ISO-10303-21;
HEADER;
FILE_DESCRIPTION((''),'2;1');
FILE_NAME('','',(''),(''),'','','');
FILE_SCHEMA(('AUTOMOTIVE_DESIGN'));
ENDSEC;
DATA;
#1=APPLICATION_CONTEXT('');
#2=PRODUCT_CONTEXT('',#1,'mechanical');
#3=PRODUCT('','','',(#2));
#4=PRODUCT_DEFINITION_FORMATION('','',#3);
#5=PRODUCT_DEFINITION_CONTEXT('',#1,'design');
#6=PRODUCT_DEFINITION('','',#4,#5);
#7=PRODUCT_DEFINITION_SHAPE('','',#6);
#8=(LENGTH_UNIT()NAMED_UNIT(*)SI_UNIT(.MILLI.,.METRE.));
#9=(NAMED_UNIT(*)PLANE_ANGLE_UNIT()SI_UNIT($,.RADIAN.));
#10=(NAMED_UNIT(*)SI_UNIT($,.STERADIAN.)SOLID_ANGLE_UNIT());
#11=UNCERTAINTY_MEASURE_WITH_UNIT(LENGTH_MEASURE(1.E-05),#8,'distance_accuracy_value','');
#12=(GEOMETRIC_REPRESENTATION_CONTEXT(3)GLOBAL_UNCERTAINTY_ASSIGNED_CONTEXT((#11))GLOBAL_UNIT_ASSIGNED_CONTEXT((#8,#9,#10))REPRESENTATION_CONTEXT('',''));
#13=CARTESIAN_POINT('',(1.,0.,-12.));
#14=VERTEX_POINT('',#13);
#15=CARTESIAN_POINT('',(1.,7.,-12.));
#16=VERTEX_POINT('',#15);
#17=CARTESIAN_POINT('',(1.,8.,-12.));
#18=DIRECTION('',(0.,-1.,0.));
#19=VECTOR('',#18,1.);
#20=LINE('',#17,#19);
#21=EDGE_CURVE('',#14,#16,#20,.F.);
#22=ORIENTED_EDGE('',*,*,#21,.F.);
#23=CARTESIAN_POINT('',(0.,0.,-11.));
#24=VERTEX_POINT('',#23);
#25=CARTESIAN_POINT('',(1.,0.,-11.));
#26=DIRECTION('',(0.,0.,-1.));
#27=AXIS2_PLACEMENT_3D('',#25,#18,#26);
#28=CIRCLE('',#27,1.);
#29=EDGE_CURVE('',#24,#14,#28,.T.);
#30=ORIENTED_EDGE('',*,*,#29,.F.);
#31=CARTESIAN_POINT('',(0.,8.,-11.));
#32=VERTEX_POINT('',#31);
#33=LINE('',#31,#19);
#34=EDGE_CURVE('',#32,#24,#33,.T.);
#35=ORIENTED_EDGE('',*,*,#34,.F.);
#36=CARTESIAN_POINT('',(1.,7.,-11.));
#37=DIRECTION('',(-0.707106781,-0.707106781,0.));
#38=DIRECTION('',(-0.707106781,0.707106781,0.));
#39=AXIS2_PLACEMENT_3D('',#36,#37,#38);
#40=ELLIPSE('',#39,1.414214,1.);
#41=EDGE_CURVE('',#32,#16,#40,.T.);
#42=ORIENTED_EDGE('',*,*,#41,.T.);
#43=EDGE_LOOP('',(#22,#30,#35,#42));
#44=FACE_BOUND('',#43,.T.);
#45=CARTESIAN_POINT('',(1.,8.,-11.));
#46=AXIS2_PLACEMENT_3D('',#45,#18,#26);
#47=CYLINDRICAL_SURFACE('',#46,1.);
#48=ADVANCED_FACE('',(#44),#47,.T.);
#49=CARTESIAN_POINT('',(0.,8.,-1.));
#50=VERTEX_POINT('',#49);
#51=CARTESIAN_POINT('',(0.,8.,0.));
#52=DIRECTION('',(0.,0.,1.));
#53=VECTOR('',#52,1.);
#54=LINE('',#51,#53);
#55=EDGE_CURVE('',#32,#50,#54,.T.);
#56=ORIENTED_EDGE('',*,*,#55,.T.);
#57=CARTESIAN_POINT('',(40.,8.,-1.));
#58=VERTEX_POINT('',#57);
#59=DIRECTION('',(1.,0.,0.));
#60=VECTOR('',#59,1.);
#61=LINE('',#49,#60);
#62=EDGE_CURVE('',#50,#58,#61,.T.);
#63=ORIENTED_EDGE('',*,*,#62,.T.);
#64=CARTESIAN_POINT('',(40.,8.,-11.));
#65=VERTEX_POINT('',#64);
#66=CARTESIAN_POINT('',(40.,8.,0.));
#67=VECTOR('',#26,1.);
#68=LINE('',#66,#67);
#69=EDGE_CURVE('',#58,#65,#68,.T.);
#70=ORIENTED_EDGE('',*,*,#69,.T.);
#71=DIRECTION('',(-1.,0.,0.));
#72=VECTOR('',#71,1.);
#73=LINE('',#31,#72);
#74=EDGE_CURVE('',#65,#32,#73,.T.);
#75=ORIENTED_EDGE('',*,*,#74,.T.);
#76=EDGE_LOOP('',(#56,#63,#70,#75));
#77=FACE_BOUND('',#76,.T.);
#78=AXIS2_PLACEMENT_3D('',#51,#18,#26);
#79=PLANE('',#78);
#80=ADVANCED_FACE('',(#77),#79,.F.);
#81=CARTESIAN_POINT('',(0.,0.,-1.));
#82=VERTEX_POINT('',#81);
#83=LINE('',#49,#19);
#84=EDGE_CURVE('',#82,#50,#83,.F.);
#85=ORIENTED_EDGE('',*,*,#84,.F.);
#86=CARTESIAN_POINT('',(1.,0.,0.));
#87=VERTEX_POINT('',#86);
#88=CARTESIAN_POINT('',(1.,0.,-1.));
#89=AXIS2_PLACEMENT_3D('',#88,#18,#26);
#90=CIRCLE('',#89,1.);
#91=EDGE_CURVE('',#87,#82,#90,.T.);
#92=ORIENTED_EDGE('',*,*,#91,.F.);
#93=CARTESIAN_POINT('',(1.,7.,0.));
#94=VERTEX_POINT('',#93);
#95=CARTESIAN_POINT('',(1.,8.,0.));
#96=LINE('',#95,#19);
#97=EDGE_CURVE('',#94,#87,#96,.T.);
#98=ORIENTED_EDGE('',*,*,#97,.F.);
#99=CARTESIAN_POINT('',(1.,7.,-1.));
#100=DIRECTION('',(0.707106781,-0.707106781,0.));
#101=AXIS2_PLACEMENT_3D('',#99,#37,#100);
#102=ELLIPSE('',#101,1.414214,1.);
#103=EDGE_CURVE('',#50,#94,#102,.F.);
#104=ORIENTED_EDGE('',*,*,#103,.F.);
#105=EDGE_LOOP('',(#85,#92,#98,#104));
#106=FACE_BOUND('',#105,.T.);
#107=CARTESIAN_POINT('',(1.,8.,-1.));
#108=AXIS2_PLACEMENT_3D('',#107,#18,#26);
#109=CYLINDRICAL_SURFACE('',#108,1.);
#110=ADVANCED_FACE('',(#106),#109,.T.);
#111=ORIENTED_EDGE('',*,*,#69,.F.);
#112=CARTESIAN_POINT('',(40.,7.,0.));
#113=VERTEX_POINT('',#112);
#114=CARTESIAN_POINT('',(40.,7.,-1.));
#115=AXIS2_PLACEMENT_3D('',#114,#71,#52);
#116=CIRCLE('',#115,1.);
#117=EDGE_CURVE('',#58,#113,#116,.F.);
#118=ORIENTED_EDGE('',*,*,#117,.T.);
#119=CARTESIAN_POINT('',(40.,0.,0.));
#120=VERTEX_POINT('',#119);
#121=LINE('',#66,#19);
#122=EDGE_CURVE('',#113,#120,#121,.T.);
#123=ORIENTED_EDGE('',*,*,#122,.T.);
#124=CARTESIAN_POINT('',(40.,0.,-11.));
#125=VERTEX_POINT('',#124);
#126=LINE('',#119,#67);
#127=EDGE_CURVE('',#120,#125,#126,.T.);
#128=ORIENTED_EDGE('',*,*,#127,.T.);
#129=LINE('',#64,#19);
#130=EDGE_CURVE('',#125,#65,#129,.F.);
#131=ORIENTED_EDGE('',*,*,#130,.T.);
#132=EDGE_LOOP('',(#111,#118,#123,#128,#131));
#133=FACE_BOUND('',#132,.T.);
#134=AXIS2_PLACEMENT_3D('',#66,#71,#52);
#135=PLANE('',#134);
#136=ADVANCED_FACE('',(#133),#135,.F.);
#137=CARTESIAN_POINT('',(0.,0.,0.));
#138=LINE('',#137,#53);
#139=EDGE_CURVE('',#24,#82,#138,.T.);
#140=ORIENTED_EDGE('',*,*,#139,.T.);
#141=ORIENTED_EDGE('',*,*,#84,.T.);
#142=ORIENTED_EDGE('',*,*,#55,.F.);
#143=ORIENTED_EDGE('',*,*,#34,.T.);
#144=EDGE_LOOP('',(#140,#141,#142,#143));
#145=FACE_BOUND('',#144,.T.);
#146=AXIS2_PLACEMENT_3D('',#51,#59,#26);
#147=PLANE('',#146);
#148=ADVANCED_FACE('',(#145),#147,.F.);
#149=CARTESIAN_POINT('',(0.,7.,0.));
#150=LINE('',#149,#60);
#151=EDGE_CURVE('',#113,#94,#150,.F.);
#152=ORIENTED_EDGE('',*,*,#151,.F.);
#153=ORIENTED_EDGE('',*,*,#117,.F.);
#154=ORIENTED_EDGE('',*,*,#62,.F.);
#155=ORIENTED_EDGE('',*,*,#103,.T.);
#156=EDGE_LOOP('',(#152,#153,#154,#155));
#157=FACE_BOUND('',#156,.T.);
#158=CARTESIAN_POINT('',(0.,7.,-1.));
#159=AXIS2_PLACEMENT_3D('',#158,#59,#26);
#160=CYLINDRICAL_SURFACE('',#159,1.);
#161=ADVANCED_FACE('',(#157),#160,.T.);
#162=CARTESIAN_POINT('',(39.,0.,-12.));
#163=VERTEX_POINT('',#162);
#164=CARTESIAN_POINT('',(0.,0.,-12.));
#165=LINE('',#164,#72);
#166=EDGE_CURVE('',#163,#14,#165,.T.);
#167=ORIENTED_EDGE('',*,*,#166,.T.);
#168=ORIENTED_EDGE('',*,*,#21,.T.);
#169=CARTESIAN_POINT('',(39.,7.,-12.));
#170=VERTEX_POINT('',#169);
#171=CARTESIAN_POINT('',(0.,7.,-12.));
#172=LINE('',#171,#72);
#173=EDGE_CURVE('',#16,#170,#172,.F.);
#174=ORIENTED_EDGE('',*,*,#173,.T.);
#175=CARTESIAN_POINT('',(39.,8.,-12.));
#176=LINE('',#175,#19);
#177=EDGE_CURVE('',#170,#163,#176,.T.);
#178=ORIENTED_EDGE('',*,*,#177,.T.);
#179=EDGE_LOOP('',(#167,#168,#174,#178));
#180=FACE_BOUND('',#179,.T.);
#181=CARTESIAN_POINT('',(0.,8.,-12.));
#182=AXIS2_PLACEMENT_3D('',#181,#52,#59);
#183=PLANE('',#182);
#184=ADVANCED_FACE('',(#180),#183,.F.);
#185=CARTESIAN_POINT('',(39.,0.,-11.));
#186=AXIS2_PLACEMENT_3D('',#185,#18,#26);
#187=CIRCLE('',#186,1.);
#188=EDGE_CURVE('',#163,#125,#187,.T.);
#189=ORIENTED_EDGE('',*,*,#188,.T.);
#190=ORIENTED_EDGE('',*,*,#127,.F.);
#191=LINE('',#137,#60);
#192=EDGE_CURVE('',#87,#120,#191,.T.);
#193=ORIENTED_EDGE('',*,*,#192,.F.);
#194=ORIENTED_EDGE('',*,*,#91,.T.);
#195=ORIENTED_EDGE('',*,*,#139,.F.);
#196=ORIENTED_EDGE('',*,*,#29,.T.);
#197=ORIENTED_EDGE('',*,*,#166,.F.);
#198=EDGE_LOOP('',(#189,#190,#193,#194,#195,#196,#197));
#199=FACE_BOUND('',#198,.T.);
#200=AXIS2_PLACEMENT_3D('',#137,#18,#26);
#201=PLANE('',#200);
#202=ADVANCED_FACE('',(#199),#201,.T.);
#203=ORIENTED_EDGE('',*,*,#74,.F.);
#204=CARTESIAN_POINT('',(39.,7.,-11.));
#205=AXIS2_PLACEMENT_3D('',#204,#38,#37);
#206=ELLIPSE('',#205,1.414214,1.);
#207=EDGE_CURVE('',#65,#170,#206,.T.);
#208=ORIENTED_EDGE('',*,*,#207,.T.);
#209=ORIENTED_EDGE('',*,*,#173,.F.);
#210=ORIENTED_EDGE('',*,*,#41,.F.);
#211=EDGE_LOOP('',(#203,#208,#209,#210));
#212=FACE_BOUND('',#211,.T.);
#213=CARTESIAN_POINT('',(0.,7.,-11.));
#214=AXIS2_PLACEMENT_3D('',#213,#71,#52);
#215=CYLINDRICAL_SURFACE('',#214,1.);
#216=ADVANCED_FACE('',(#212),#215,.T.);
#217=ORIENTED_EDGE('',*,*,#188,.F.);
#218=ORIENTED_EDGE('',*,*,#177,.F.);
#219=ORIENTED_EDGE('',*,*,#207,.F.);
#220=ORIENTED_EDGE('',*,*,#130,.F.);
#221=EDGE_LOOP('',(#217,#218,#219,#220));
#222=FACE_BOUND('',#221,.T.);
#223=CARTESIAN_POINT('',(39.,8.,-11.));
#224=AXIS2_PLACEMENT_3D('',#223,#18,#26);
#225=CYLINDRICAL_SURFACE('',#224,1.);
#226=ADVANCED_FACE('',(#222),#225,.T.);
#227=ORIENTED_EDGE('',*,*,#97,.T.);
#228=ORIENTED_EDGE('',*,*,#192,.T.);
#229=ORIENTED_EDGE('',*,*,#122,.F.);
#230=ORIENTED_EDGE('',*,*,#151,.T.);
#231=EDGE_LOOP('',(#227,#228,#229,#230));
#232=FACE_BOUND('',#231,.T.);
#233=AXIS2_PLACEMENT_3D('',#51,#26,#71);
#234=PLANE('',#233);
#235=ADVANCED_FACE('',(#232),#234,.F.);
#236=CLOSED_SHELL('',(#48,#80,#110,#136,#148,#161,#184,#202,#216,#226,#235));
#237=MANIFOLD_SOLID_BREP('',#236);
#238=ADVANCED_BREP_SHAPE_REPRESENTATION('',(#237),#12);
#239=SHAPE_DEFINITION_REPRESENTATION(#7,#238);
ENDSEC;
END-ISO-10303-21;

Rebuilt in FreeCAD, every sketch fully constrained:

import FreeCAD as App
import Part
import Sketcher

V = App.Vector
Q = App.Units.Quantity


def edges_at(feature, points):
    """Names of the edges that pass closest to the given points."""
    edges = feature.Shape.Edges
    near = lambda p: min(range(len(edges)), key=lambda i: edges[i].distToShape(Part.Vertex(*p))[0])
    return sorted({f"Edge{near(p) + 1}" for p in points})

doc = App.newDocument("Part")
body = doc.addObject("PartDesign::Body", "Body")

# Sketch on XZ plane
sketch1 = doc.addObject("Sketcher::SketchObject", "Sketch")
body.addObject(sketch1)
sketch1.AttachmentSupport = (doc.XZ_Plane, [""])
sketch1.MapMode = "FlatFace"
sketch1.addGeometry(Part.LineSegment(V(0, -12, 0), V(0, 0, 0)), False)
sketch1.addGeometry(Part.LineSegment(V(0, 0, 0), V(40, 0, 0)), False)
sketch1.addGeometry(Part.LineSegment(V(40, 0, 0), V(40, -12, 0)), False)
sketch1.addGeometry(Part.LineSegment(V(40, -12, 0), V(0, -12, 0)), False)
sketch1.addConstraint(Sketcher.Constraint("Coincident", 0, 2, 1, 1))
sketch1.addConstraint(Sketcher.Constraint("Coincident", 1, 2, 2, 1))
sketch1.addConstraint(Sketcher.Constraint("Coincident", 2, 2, 3, 1))
sketch1.addConstraint(Sketcher.Constraint("Coincident", 3, 2, 0, 1))
sketch1.addConstraint(Sketcher.Constraint("Vertical", 0))
sketch1.addConstraint(Sketcher.Constraint("Horizontal", 1))
sketch1.addConstraint(Sketcher.Constraint("Vertical", 2))
sketch1.addConstraint(Sketcher.Constraint("Horizontal", 3))
sketch1.addConstraint(Sketcher.Constraint("Coincident", 0, 2, -1, 1))
sketch1.addConstraint(Sketcher.Constraint("DistanceX", 1, 1, 1, 2, Q("40 mm")))
sketch1.addConstraint(Sketcher.Constraint("DistanceY", 0, 1, 0, 2, Q("12 mm")))
pad1 = doc.addObject("PartDesign::Pad", "Pad")
body.addObject(pad1)
pad1.Profile = sketch1
pad1.Length = 8
pad1.Reversed = True
doc.recompute()

fillet = doc.addObject("PartDesign::Fillet", "Fillet")
body.addObject(fillet)
fillet.Base = (pad1, edges_at(pad1, [
    (20, 8, -12),
    (0, 4, -12),
    (40, 4, -12),
    (0, 4, 0),
    (20, 8, 0),
]))
fillet.Radius = 1

doc.recompute()
